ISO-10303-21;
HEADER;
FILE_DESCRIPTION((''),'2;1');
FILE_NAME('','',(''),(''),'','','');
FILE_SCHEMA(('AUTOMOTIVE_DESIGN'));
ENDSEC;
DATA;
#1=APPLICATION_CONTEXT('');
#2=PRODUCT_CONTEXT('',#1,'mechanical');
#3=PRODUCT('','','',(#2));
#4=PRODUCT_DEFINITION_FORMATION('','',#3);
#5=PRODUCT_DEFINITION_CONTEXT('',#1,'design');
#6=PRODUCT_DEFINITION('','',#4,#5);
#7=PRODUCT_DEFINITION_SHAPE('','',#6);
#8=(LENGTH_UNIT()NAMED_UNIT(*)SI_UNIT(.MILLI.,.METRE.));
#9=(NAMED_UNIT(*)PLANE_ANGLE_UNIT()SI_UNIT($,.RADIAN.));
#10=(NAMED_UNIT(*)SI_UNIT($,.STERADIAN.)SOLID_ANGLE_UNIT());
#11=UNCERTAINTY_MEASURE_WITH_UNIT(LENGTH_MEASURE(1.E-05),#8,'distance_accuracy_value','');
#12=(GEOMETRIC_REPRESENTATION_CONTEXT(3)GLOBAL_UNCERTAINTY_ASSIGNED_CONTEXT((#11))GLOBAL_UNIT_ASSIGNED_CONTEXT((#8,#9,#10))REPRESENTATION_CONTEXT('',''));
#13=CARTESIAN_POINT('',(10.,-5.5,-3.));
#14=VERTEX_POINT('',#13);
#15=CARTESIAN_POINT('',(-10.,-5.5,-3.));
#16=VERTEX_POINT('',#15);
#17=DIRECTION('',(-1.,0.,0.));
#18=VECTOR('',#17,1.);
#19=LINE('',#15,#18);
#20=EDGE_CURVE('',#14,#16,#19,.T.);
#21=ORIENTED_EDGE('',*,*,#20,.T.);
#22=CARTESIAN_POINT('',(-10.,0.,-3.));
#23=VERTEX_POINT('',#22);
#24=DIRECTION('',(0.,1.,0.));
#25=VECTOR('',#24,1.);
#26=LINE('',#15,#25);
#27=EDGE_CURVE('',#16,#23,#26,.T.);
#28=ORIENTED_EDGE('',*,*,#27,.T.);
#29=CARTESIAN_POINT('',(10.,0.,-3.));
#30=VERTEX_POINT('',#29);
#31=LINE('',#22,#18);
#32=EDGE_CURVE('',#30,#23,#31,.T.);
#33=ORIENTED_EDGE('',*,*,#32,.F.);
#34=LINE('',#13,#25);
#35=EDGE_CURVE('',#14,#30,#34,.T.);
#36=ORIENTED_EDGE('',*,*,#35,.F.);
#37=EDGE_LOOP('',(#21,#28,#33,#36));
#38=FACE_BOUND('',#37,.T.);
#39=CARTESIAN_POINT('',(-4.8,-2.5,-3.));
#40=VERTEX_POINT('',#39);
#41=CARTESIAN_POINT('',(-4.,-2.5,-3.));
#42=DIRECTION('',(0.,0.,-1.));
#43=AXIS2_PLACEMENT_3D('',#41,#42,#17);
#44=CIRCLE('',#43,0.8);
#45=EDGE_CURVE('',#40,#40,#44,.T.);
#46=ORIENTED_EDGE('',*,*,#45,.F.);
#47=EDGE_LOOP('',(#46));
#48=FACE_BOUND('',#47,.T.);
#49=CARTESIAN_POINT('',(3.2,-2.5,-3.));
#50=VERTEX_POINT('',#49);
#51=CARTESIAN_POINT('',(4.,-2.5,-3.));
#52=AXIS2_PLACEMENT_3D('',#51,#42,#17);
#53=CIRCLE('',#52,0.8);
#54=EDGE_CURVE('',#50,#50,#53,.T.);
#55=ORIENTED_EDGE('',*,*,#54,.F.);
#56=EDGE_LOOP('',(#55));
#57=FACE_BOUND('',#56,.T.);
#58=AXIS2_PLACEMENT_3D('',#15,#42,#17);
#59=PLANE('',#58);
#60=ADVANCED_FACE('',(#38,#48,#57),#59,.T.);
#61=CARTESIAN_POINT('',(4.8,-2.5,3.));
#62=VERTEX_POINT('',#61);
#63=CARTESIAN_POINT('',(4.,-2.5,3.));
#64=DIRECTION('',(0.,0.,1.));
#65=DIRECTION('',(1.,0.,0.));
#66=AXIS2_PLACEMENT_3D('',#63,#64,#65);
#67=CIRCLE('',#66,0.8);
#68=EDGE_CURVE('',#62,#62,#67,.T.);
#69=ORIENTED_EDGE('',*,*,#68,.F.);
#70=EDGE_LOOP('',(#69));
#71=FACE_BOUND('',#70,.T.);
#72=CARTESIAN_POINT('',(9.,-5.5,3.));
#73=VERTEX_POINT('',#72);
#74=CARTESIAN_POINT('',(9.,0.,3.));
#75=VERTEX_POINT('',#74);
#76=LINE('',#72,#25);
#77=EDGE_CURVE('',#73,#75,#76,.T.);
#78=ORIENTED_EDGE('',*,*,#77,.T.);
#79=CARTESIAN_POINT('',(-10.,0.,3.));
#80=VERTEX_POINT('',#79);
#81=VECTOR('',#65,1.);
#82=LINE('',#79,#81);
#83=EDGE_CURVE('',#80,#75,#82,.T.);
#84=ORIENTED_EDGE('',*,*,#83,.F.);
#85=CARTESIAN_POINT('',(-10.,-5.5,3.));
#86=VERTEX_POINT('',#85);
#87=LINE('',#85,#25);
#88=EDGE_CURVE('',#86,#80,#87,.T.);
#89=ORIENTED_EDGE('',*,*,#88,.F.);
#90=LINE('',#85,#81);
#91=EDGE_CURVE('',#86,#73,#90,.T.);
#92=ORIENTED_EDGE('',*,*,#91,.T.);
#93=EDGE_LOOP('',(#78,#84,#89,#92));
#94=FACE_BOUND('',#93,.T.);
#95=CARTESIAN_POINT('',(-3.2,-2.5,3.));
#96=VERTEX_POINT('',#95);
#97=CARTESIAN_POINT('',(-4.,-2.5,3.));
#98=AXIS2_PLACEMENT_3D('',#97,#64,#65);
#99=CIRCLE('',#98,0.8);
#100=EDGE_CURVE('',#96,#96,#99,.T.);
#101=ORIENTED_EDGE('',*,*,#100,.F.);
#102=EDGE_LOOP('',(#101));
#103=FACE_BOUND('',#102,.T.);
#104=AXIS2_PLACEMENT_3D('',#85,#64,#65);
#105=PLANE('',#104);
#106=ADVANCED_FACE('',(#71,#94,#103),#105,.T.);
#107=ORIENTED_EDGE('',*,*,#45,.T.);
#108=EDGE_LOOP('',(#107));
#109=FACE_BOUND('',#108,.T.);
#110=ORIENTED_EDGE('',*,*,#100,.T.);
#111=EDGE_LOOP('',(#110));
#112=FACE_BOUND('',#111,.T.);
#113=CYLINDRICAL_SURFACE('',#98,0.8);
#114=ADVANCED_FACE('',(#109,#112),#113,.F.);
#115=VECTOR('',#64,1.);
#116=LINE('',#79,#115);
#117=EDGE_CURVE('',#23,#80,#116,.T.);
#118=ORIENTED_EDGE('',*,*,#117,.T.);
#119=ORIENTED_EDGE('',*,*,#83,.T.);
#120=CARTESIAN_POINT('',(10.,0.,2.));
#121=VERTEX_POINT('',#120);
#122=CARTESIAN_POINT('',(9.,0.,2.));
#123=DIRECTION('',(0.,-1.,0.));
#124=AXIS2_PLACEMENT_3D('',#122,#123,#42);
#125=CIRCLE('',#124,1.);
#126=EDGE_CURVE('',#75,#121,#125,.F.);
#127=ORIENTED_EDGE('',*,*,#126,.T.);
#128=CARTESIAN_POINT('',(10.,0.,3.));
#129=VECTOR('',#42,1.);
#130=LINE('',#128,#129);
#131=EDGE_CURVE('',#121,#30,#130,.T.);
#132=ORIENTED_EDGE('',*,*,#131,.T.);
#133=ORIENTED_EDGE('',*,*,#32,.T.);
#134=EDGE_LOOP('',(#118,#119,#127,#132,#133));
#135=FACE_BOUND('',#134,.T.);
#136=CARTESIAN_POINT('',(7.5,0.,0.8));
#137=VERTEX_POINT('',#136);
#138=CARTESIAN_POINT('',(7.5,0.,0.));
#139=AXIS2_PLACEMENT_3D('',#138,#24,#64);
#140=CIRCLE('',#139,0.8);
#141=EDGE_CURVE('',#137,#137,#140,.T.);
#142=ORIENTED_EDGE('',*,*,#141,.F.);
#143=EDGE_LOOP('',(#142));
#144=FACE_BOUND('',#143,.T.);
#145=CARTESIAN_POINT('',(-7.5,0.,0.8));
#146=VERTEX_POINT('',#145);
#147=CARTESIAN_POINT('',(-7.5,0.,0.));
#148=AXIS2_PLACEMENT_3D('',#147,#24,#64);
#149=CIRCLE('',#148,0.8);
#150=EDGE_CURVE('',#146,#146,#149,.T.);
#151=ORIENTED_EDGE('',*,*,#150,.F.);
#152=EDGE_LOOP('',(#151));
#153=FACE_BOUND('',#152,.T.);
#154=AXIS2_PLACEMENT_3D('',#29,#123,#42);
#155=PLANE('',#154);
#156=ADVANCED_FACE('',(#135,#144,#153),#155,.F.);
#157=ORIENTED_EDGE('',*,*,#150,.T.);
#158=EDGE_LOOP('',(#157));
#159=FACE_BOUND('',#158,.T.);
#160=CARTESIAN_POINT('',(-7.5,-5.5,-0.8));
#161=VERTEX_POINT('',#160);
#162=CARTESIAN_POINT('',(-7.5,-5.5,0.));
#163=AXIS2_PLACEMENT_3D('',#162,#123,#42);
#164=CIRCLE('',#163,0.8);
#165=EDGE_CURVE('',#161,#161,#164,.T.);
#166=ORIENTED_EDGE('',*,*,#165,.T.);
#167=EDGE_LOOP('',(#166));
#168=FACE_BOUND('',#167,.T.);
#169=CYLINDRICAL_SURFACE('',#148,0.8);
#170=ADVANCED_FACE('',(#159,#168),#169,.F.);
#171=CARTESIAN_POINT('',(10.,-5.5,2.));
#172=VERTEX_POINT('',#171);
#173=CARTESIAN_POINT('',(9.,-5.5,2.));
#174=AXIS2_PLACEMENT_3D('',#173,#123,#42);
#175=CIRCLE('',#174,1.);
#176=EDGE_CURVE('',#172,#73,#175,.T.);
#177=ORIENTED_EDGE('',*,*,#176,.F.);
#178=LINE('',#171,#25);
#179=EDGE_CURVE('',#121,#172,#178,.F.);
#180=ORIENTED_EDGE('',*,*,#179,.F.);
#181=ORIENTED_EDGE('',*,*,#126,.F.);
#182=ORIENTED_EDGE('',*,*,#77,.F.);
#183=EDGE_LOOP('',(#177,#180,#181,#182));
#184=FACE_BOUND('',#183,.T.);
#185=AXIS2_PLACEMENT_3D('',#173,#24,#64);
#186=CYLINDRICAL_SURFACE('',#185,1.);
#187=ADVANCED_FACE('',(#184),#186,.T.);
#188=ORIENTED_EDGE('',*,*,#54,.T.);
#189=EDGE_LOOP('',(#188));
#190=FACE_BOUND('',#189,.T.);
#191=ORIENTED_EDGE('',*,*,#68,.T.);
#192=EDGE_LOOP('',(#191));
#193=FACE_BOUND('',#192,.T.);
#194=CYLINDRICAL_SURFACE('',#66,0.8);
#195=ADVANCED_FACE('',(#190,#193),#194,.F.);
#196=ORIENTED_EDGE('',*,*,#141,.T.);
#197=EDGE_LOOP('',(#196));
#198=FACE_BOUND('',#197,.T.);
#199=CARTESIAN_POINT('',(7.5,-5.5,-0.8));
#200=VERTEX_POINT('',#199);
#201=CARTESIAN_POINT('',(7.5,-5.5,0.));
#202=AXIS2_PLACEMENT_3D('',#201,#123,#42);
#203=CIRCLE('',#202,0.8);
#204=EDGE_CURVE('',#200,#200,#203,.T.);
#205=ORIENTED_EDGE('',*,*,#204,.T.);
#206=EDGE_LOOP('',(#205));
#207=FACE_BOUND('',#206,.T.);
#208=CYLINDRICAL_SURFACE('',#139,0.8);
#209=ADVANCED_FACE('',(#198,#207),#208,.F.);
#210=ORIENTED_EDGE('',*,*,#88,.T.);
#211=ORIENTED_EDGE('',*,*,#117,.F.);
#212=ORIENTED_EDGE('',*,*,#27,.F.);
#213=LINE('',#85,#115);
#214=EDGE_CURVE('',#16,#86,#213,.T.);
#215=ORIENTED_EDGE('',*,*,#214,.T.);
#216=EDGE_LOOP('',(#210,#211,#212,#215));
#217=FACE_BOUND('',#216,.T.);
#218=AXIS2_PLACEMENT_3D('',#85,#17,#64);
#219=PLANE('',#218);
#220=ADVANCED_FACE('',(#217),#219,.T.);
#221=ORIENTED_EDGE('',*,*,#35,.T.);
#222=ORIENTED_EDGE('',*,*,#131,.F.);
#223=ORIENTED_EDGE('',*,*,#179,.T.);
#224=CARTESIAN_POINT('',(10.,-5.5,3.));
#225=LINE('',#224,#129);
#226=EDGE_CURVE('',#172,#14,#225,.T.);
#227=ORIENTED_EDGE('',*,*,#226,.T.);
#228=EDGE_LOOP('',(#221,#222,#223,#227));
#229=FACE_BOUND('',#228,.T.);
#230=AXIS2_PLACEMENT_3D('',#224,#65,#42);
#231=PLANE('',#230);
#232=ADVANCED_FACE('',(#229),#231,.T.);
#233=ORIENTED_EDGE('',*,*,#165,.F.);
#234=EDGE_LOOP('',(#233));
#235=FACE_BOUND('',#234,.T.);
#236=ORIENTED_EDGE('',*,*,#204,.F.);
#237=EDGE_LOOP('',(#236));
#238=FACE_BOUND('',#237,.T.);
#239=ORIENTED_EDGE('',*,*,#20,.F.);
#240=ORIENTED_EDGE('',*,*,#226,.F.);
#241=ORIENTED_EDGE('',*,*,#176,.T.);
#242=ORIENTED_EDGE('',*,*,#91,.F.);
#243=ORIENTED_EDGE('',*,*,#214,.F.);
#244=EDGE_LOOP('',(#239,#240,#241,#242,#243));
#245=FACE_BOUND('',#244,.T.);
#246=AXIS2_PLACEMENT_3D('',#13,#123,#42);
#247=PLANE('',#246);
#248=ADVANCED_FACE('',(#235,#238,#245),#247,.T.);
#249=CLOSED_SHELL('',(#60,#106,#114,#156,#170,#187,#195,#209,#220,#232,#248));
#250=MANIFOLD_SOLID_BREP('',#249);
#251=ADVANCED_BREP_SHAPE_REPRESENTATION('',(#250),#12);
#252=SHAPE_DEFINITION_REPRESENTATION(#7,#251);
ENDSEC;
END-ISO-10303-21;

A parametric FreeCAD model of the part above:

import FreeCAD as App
import Part
import Sketcher
from FreeCAD import Vector


def edges_at(feature, points):
    """Names of the edges that pass closest to the given points."""
    edges = feature.Shape.Edges
    near = lambda p: min(range(len(edges)), key=lambda i: edges[i].distToShape(Part.Vertex(*p))[0])
    return sorted({f"Edge{near(p) + 1}" for p in points})

doc = App.newDocument("Part")
body = doc.addObject("PartDesign::Body", "Body")

# Sketch on XZ plane
sketch1 = body.newObject("Sketcher::SketchObject", "Sketch")
sketch1.AttachmentSupport = (doc.getObject("XZ_Plane"), [""])
sketch1.MapMode = "FlatFace"
sketch1.addGeometry(Part.LineSegment(Vector(-10, -3, 0), Vector(-10, 3, 0)), False)
sketch1.addGeometry(Part.LineSegment(Vector(-10, 3, 0), Vector(10, 3, 0)), False)
sketch1.addGeometry(Part.LineSegment(Vector(10, 3, 0), Vector(10, -3, 0)), False)
sketch1.addGeometry(Part.LineSegment(Vector(10, -3, 0), Vector(-10, -3, 0)), False)
sketch1.addConstraint(Sketcher.Constraint("Coincident", 0, 2, 1, 1))
sketch1.addConstraint(Sketcher.Constraint("Coincident", 1, 2, 2, 1))
sketch1.addConstraint(Sketcher.Constraint("Coincident", 2, 2, 3, 1))
sketch1.addConstraint(Sketcher.Constraint("Coincident", 3, 2, 0, 1))
sketch1.addConstraint(Sketcher.Constraint("Vertical", 0))
sketch1.addConstraint(Sketcher.Constraint("Horizontal", 1))
sketch1.addConstraint(Sketcher.Constraint("Vertical", 2))
sketch1.addConstraint(Sketcher.Constraint("Horizontal", 3))
sketch1.addConstraint(Sketcher.Constraint("Symmetric", 0, 2, 2, 2, -1, 1))
sketch1.addConstraint(Sketcher.Constraint("DistanceX", 1, 1, 1, 2, 20.0))
sketch1.addConstraint(Sketcher.Constraint("DistanceY", 0, 1, 0, 2, 6.0))
pad1 = body.newObject("PartDesign::Pad", "Pad")
pad1.Profile = sketch1
pad1.Length = 5.5

# Sketch on XZ plane
sketch2 = body.newObject("Sketcher::SketchObject", "Sketch001")
sketch2.AttachmentSupport = (doc.getObject("XZ_Plane"), [""])
sketch2.MapMode = "FlatFace"
sketch2.addGeometry(Part.Circle(Vector(-7.5, 0, 0), Vector(0, 0, 1), 0.8), False)
sketch2.addGeometry(Part.Circle(Vector(7.5, 0, 0), Vector(0, 0, 1), 0.8), False)
sketch2.addConstraint(Sketcher.Constraint("Equal", 0, 1))
sketch2.addConstraint(Sketcher.Constraint("Symmetric", 0, 3, 1, 3, -1, 1))
sketch2.addConstraint(Sketcher.Constraint("PointOnObject", 0, 3, -1))
sketch2.addConstraint(Sketcher.Constraint("Diameter", 0, 1.6))
sketch2.addConstraint(Sketcher.Constraint("DistanceX", 0, 3, 1, 3, 15.0))
doc.recompute()
hole = body.newObject("PartDesign::Hole", "Hole")
hole.Profile = sketch2
hole.ThreadType = "None"
hole.Diameter = 1.6
hole.DepthType = "ThroughAll"
hole.Reversed = True
doc.recompute()

fillet = body.newObject("PartDesign::Fillet", "Fillet")
fillet.Base = (hole, edges_at(hole, [(10, -2.75, 3)]))
fillet.Radius = 1

# Sketch on XY plane
sketch3 = body.newObject("Sketcher::SketchObject", "Sketch002")
sketch3.AttachmentSupport = (doc.getObject("XY_Plane"), [""])
sketch3.MapMode = "FlatFace"
sketch3.AttachmentOffset = App.Placement(Vector(0, 0, 3), App.Rotation())
sketch3.addGeometry(Part.Circle(Vector(-4, -2.5, 0), Vector(0, 0, 1), 0.8), False)
sketch3.addGeometry(Part.Circle(Vector(4, -2.5, 0), Vector(0, 0, 1), 0.8), False)
sketch3.addConstraint(Sketcher.Constraint("Equal", 0, 1))
sketch3.addConstraint(Sketcher.Constraint("Symmetric", 0, 3, 1, 3, -2))
sketch3.addConstraint(Sketcher.Constraint("Diameter", 0, 1.6))
sketch3.addConstraint(Sketcher.Constraint("DistanceX", 0, 3, -1, 1, 4.0))
sketch3.addConstraint(Sketcher.Constraint("DistanceY", 0, 3, -1, 1, 2.5))
doc.recompute()
hole2 = body.newObject("PartDesign::Hole", "Hole001")
hole2.Profile = sketch3
hole2.ThreadType = "None"
hole2.Diameter = 1.6
hole2.DepthType = "ThroughAll"

doc.recompute()
